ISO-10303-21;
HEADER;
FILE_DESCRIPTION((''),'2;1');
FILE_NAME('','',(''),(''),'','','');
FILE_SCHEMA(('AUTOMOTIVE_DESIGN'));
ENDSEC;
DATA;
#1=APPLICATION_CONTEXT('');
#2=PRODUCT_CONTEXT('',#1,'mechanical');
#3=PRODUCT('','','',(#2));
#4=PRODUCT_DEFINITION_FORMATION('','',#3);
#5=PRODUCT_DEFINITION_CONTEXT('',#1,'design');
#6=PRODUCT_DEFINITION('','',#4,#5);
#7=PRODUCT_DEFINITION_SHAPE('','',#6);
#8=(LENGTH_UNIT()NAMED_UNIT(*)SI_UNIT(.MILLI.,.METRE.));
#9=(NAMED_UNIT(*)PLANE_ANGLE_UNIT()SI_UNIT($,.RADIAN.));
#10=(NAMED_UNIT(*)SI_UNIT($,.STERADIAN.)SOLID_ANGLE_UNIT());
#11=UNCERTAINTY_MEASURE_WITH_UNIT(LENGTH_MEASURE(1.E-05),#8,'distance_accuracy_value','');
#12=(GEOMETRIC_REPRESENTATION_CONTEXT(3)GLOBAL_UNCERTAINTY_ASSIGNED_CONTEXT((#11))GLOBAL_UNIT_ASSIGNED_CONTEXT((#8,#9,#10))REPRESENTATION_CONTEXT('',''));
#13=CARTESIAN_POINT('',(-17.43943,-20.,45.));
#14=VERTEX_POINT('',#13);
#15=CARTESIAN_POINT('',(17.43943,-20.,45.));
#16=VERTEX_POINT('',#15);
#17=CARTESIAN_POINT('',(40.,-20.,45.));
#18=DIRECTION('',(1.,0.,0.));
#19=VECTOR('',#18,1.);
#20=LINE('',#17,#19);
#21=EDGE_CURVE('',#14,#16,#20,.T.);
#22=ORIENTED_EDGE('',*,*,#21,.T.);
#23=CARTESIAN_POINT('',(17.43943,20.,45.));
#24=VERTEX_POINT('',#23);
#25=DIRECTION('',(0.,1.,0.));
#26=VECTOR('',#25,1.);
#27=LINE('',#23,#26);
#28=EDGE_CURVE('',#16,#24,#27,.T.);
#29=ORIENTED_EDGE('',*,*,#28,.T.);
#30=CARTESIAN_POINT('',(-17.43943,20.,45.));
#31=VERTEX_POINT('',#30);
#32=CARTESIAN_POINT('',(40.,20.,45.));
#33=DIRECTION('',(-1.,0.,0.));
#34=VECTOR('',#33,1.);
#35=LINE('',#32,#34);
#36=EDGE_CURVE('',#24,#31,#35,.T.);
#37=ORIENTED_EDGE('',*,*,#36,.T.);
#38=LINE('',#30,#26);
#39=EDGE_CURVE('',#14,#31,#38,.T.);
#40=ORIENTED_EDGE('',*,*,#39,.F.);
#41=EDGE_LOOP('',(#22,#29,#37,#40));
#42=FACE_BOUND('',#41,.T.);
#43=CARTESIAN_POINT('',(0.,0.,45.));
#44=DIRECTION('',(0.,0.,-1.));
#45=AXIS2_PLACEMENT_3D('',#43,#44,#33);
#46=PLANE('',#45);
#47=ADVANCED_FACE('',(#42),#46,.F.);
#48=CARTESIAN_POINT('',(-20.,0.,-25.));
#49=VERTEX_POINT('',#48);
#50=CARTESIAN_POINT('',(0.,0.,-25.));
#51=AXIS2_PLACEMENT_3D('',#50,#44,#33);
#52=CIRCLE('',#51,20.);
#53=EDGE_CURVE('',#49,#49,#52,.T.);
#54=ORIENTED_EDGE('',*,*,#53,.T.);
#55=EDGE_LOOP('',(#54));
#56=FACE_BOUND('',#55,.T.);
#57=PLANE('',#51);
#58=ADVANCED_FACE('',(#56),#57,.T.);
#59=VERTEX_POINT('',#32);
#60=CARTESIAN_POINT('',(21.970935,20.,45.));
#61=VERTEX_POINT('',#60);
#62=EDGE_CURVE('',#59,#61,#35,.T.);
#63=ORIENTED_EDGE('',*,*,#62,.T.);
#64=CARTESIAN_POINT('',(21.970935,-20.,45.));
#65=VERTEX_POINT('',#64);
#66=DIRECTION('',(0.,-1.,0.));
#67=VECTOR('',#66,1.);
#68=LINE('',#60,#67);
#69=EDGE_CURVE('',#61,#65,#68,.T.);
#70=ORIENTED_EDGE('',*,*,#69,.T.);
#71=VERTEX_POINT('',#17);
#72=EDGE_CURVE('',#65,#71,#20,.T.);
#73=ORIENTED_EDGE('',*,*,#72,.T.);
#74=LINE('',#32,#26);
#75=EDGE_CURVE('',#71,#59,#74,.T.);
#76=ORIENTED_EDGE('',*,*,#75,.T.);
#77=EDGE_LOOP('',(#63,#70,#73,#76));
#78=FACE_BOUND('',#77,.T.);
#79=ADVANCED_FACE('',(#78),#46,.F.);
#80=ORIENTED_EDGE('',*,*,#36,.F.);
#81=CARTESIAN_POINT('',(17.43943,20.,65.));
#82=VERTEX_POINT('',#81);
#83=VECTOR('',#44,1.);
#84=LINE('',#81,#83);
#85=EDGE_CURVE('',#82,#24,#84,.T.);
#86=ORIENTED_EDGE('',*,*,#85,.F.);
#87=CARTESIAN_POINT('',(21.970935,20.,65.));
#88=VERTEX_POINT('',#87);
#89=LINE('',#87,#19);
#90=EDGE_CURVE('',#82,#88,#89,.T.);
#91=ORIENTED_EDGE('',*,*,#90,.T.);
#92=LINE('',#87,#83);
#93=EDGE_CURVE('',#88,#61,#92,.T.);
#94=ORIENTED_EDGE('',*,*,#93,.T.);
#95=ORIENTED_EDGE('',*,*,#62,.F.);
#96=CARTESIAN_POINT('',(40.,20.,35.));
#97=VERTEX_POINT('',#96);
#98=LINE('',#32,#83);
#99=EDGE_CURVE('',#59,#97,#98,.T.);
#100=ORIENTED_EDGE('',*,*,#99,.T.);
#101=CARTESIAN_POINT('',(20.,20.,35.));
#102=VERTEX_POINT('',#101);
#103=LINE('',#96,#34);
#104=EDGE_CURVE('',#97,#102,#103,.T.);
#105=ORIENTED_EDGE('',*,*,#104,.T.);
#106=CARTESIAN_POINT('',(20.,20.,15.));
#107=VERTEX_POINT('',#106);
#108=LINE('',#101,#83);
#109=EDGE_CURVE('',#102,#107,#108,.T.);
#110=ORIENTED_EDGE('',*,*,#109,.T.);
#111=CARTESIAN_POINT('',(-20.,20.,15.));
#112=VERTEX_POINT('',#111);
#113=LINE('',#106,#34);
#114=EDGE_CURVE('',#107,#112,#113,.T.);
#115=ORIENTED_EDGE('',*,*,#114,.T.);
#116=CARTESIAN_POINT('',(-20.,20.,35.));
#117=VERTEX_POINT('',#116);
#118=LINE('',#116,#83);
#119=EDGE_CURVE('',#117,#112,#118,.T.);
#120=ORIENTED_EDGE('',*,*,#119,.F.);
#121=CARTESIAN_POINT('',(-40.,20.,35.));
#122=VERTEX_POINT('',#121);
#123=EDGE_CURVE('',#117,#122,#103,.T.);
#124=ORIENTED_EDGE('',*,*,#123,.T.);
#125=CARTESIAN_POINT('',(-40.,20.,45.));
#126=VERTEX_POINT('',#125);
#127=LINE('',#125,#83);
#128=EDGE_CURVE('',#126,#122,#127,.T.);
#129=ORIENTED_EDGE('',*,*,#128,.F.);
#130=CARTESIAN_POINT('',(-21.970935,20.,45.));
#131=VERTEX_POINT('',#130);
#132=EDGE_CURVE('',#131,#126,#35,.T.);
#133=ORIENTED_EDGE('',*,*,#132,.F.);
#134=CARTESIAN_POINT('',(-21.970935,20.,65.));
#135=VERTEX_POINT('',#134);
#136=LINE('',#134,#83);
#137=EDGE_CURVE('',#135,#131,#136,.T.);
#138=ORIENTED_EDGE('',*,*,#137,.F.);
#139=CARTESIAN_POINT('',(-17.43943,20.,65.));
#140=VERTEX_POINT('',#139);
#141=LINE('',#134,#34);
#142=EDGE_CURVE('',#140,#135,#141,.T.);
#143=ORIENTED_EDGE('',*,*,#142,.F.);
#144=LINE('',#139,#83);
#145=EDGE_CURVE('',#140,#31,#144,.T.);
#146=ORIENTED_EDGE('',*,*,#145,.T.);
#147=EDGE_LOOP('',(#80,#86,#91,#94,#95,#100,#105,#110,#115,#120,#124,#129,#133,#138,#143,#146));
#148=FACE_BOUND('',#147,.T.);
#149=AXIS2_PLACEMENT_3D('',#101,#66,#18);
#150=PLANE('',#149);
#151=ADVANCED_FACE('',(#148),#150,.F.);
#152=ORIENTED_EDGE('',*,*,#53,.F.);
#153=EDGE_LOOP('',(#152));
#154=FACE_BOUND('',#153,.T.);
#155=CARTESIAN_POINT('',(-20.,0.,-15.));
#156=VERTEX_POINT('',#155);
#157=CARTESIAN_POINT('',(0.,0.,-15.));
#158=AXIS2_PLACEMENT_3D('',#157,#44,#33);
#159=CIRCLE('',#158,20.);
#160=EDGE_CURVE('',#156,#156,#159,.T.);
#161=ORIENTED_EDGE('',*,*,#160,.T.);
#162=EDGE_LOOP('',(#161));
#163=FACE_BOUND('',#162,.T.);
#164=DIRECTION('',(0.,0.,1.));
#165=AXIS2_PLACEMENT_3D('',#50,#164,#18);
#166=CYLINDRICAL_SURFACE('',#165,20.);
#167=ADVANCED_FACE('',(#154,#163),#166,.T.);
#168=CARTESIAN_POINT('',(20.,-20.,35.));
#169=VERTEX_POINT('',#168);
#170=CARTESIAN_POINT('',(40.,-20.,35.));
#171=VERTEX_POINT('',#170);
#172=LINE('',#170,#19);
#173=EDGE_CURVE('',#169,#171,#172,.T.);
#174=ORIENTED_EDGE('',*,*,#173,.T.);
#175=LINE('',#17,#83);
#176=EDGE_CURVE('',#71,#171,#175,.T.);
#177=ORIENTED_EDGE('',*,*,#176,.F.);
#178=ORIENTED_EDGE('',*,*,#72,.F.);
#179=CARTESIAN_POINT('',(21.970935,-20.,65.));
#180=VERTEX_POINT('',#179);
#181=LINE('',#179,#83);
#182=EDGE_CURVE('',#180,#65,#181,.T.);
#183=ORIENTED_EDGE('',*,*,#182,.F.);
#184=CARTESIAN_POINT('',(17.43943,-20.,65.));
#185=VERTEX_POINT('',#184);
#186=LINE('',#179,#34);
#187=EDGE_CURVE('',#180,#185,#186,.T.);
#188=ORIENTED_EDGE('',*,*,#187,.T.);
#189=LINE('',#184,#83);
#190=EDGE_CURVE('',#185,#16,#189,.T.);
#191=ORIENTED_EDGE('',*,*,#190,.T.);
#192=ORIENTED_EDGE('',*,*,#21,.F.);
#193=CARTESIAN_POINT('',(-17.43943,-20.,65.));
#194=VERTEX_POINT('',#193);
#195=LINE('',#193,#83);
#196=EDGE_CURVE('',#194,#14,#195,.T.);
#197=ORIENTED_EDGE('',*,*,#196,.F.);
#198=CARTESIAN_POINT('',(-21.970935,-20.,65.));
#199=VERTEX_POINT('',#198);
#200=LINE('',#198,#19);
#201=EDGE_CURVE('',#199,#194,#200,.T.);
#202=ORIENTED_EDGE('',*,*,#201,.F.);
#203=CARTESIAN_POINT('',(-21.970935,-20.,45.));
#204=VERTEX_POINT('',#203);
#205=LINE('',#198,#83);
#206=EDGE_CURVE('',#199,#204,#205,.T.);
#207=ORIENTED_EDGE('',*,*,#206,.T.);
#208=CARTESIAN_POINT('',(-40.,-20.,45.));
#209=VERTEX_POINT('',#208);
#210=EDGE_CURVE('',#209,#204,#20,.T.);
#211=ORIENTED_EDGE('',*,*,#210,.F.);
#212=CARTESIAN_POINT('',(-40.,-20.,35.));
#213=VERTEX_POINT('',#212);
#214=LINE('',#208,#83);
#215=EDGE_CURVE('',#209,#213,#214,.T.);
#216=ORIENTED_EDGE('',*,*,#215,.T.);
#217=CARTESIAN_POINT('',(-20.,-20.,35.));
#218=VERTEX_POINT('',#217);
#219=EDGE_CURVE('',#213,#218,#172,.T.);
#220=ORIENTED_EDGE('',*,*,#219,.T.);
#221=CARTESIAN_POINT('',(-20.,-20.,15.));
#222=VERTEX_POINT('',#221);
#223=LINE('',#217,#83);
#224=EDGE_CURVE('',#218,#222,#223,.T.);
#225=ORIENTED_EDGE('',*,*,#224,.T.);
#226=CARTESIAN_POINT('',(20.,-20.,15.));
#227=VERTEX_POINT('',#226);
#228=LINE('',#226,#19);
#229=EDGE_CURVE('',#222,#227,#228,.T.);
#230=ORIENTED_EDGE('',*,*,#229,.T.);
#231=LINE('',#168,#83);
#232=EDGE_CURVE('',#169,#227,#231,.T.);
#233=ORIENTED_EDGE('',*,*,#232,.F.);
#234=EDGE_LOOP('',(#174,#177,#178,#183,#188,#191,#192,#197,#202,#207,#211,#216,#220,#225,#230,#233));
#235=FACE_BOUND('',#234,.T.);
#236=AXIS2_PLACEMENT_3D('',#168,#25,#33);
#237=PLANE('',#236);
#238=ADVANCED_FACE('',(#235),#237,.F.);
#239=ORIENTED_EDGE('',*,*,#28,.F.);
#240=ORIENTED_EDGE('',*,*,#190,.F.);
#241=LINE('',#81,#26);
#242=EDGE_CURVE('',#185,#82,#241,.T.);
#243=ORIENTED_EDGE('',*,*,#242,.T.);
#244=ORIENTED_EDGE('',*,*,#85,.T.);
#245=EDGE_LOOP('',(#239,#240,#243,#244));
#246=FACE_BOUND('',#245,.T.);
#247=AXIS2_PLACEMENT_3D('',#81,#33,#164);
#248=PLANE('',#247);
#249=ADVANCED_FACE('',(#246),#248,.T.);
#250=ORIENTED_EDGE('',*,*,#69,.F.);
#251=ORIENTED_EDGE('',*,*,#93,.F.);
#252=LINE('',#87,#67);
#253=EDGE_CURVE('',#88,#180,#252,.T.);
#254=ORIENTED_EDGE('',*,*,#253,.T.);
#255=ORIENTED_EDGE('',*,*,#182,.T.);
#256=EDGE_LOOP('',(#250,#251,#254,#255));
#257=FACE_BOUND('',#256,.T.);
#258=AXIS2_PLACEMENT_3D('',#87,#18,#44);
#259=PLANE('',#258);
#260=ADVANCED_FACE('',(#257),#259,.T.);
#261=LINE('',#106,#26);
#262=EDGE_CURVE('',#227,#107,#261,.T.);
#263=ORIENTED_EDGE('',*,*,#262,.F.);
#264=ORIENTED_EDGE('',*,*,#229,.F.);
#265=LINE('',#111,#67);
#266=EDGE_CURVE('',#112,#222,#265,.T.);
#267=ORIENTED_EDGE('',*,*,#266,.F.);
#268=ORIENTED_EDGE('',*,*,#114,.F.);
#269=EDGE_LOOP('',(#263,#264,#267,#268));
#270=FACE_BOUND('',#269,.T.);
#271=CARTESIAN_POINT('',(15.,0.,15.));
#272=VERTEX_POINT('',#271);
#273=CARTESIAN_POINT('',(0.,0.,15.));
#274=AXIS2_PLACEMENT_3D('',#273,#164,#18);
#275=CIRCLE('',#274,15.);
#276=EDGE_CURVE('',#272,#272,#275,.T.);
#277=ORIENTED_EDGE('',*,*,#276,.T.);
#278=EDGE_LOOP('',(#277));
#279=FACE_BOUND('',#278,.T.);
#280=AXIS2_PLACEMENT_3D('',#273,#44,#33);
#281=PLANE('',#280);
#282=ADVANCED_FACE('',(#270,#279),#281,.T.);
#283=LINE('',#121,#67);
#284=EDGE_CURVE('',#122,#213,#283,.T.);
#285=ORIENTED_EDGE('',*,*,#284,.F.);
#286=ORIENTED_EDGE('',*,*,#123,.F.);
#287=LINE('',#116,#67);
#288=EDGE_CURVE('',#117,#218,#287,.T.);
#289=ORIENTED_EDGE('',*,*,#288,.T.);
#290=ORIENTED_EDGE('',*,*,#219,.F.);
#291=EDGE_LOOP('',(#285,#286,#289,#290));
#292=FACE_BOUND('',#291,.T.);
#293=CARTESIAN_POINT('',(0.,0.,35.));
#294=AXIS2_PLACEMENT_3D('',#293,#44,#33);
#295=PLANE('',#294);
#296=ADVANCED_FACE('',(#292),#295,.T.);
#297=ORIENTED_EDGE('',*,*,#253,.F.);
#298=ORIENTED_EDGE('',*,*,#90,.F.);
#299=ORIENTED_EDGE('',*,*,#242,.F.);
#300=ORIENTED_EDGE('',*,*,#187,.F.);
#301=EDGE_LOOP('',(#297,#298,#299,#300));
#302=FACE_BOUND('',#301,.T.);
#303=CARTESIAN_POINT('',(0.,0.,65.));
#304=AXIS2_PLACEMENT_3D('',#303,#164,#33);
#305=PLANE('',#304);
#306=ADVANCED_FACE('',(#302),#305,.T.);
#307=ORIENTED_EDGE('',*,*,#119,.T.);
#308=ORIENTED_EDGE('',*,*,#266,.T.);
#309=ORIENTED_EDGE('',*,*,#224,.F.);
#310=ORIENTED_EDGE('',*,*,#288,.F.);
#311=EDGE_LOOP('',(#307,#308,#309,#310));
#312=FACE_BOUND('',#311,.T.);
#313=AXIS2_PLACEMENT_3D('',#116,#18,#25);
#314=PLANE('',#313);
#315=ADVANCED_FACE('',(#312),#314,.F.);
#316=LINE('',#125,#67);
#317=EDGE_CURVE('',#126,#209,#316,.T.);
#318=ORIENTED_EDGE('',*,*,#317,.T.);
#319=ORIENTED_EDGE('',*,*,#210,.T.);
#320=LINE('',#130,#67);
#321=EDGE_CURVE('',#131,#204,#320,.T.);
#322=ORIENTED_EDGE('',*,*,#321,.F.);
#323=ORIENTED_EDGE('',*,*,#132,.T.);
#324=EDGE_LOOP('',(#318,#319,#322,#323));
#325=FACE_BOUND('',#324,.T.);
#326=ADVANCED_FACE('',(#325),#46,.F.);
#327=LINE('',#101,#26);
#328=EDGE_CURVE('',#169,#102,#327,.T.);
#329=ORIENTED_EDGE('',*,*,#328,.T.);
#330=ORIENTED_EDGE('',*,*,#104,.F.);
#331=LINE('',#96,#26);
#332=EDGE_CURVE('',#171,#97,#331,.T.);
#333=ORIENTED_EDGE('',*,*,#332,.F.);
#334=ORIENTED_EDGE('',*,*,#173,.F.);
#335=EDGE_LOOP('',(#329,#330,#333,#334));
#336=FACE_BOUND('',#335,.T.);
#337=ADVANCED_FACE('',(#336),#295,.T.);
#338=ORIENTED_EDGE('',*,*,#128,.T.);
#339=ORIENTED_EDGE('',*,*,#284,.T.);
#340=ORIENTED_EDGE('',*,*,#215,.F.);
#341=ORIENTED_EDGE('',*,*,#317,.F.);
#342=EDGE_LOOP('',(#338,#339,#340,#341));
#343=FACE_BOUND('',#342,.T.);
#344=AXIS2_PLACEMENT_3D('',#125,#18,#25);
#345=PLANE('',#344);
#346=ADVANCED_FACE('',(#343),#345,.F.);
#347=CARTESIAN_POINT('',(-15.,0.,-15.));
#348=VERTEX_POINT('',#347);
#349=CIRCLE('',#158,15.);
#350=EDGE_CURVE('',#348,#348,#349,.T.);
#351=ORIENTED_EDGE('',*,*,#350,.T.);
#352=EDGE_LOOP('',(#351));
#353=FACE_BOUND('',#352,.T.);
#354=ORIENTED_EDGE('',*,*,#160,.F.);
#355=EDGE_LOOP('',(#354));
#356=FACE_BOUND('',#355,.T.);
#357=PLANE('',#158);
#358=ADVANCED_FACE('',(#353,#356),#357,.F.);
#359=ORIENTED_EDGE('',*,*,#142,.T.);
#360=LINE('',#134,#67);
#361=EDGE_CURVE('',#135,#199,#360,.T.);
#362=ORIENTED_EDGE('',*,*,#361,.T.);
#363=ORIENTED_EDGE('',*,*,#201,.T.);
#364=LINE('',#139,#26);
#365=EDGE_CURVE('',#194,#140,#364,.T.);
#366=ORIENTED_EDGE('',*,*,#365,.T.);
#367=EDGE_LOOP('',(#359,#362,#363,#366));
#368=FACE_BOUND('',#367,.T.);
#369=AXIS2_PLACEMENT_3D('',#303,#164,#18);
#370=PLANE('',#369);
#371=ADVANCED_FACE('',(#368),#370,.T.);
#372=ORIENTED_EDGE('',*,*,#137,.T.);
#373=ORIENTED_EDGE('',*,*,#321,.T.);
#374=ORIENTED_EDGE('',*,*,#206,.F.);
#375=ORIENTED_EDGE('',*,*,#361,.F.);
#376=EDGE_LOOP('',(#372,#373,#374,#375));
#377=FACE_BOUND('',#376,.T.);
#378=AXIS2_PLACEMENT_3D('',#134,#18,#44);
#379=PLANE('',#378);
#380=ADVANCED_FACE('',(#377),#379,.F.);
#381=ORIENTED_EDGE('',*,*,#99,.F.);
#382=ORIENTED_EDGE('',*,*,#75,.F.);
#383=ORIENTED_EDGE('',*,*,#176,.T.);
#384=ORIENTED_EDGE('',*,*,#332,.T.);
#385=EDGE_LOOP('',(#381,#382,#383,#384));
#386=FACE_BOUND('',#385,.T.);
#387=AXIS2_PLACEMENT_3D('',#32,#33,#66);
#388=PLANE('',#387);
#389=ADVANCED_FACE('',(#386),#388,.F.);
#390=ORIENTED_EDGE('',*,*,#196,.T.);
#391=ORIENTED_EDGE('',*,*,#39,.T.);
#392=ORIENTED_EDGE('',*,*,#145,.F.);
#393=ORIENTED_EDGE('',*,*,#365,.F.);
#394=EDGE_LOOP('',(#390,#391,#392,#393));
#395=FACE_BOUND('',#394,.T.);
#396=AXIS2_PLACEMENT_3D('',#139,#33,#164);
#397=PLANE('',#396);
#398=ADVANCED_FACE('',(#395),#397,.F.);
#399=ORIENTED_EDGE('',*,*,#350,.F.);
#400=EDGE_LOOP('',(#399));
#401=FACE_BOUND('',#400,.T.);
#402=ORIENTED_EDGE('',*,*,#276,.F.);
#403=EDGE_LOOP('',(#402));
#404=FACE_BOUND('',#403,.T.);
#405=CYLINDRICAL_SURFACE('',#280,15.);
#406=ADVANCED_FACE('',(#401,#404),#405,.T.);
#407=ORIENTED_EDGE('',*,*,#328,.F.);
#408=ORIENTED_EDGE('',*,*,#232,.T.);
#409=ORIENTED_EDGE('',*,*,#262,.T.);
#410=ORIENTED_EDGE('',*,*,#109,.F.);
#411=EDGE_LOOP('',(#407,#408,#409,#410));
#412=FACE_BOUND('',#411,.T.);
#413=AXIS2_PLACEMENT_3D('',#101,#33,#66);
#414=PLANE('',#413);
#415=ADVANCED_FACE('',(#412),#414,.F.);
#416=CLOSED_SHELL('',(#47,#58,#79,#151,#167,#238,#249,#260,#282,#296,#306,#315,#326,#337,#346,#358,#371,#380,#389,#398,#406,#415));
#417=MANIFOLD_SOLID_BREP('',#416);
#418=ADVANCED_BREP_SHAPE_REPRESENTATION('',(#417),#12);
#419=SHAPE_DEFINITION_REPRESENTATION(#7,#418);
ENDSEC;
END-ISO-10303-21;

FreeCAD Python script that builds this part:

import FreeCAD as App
import Part
import Sketcher


def add_polygon(sketch, points):
    """Adds a closed chain of lines whose ends are joined by coincident constraints."""
    first, n = sketch.GeometryCount, len(points)
    for a, b in zip(points, points[1:] + points[:1]):
        sketch.addGeometry(Part.LineSegment(App.Vector(*a, 0), App.Vector(*b, 0)), False)
    for i in range(n):
        sketch.addConstraint(Sketcher.Constraint("Coincident", first + i, 2, first + (i + 1) % n, 1))

doc = App.newDocument("Part")
body = doc.addObject("PartDesign::Body", "Body")

# Sketch on XY plane
sketch1 = body.newObject("Sketcher::SketchObject", "Sketch")
sketch1.AttachmentSupport = (doc.getObject("XY_Plane"), [""])
sketch1.MapMode = "FlatFace"
sketch1.addGeometry(Part.Circle(App.Vector(0, 0, 0), App.Vector(0, 0, 1), 15), False)
sketch1.addConstraint([
    Sketcher.Constraint("Coincident", 0, 3, -1, 1),
    Sketcher.Constraint("Diameter", 0, 30.0),
])
pad1 = body.newObject("PartDesign::Pad", "Pad")
pad1.Profile = sketch1
pad1.Length = 30
pad1.Midplane = True

# Sketch on XY plane
sketch2 = body.newObject("Sketcher::SketchObject", "Sketch001")
sketch2.AttachmentSupport = (doc.getObject("XY_Plane"), [""])
sketch2.MapMode = "FlatFace"
sketch2.AttachmentOffset = App.Placement(App.Vector(0, 0, -15), App.Rotation())
sketch2.addGeometry(Part.Circle(App.Vector(0, 0, 0), App.Vector(0, 0, 1), 20), False)
sketch2.addConstraint([
    Sketcher.Constraint("Coincident", 0, 3, -1, 1),
    Sketcher.Constraint("Diameter", 0, 40.0),
])
pad2 = body.newObject("PartDesign::Pad", "Pad001")
pad2.Profile = sketch2
pad2.Length = 10
pad2.Reversed = True

# Sketch on XY plane
sketch3 = body.newObject("Sketcher::SketchObject", "Sketch002")
sketch3.AttachmentSupport = (doc.getObject("XY_Plane"), [""])
sketch3.MapMode = "FlatFace"
sketch3.AttachmentOffset = App.Placement(App.Vector(0, 0, 15), App.Rotation())
add_polygon(sketch3, [(-20, 20), (-20, -20), (20, -20), (20, 20)])  # lines 0-3
sketch3.addConstraint([
    Sketcher.Constraint("Vertical", 0),
    Sketcher.Constraint("Horizontal", 1),
    Sketcher.Constraint("Vertical", 2),
    Sketcher.Constraint("Horizontal", 3),
    Sketcher.Constraint("Symmetric", 0, 2, 2, 2, -1, 1),
    Sketcher.Constraint("Equal", 3, 0),
    Sketcher.Constraint("DistanceX", 1, 1, 1, 2, 40.0),
])
pad3 = body.newObject("PartDesign::Pad", "Pad002")
pad3.Profile = sketch3
pad3.Length = 20

# Sketch on XY plane
sketch4 = body.newObject("Sketcher::SketchObject", "Sketch003")
sketch4.AttachmentSupport = (doc.getObject("XY_Plane"), [""])
sketch4.MapMode = "FlatFace"
sketch4.AttachmentOffset = App.Placement(App.Vector(0, 0, 35), App.Rotation())
add_polygon(sketch4, [(-40, 20), (-40, -20), (40, -20), (40, 20)])  # lines 0-3
sketch4.addConstraint([
    Sketcher.Constraint("Vertical", 0),
    Sketcher.Constraint("Horizontal", 1),
    Sketcher.Constraint("Vertical", 2),
    Sketcher.Constraint("Horizontal", 3),
    Sketcher.Constraint("Symmetric", 0, 2, 2, 2, -1, 1),
    Sketcher.Constraint("DistanceX", 1, 1, 1, 2, 80.0),
    Sketcher.Constraint("DistanceY", 0, 2, 0, 1, 40.0),
])
pad4 = body.newObject("PartDesign::Pad", "Pad003")
pad4.Profile = sketch4
pad4.Length = 10

# Sketch on XY plane
sketch5 = body.newObject("Sketcher::SketchObject", "Sketch004")
sketch5.AttachmentSupport = (doc.getObject("XY_Plane"), [""])
sketch5.MapMode = "FlatFace"
sketch5.AttachmentOffset = App.Placement(App.Vector(0, 0, 45), App.Rotation())
add_polygon(sketch5, [(-22, 20), (-22, -20), (-17.4, -20), (-17.4, 20)])  # lines 0-3
sketch5.addConstraint([
    Sketcher.Constraint("Vertical", 0),
    Sketcher.Constraint("Horizontal", 1),
    Sketcher.Constraint("Vertical", 2),
    Sketcher.Constraint("Horizontal", 3),
    Sketcher.Constraint("DistanceY", 0, 2, 0, 1, 40.0),
    Sketcher.Constraint("DistanceY", 0, 2, -1, 1, 20.0),
    Sketcher.Constraint("DistanceX", 1, 1, 1, 2, 4.531505),
    Sketcher.Constraint("DistanceX", 1, 2, -1, 1, 17.43943),
])
pad5 = body.newObject("PartDesign::Pad", "Pad004")
pad5.Profile = sketch5
pad5.Length = 20
doc.recompute()

mirrored = body.newObject("PartDesign::Mirrored", "Mirrored")
mirrored.Originals = [pad5]
mirrored.MirrorPlane = (doc.getObject("YZ_Plane"), [""])
body.Tip = mirrored

doc.recompute()
